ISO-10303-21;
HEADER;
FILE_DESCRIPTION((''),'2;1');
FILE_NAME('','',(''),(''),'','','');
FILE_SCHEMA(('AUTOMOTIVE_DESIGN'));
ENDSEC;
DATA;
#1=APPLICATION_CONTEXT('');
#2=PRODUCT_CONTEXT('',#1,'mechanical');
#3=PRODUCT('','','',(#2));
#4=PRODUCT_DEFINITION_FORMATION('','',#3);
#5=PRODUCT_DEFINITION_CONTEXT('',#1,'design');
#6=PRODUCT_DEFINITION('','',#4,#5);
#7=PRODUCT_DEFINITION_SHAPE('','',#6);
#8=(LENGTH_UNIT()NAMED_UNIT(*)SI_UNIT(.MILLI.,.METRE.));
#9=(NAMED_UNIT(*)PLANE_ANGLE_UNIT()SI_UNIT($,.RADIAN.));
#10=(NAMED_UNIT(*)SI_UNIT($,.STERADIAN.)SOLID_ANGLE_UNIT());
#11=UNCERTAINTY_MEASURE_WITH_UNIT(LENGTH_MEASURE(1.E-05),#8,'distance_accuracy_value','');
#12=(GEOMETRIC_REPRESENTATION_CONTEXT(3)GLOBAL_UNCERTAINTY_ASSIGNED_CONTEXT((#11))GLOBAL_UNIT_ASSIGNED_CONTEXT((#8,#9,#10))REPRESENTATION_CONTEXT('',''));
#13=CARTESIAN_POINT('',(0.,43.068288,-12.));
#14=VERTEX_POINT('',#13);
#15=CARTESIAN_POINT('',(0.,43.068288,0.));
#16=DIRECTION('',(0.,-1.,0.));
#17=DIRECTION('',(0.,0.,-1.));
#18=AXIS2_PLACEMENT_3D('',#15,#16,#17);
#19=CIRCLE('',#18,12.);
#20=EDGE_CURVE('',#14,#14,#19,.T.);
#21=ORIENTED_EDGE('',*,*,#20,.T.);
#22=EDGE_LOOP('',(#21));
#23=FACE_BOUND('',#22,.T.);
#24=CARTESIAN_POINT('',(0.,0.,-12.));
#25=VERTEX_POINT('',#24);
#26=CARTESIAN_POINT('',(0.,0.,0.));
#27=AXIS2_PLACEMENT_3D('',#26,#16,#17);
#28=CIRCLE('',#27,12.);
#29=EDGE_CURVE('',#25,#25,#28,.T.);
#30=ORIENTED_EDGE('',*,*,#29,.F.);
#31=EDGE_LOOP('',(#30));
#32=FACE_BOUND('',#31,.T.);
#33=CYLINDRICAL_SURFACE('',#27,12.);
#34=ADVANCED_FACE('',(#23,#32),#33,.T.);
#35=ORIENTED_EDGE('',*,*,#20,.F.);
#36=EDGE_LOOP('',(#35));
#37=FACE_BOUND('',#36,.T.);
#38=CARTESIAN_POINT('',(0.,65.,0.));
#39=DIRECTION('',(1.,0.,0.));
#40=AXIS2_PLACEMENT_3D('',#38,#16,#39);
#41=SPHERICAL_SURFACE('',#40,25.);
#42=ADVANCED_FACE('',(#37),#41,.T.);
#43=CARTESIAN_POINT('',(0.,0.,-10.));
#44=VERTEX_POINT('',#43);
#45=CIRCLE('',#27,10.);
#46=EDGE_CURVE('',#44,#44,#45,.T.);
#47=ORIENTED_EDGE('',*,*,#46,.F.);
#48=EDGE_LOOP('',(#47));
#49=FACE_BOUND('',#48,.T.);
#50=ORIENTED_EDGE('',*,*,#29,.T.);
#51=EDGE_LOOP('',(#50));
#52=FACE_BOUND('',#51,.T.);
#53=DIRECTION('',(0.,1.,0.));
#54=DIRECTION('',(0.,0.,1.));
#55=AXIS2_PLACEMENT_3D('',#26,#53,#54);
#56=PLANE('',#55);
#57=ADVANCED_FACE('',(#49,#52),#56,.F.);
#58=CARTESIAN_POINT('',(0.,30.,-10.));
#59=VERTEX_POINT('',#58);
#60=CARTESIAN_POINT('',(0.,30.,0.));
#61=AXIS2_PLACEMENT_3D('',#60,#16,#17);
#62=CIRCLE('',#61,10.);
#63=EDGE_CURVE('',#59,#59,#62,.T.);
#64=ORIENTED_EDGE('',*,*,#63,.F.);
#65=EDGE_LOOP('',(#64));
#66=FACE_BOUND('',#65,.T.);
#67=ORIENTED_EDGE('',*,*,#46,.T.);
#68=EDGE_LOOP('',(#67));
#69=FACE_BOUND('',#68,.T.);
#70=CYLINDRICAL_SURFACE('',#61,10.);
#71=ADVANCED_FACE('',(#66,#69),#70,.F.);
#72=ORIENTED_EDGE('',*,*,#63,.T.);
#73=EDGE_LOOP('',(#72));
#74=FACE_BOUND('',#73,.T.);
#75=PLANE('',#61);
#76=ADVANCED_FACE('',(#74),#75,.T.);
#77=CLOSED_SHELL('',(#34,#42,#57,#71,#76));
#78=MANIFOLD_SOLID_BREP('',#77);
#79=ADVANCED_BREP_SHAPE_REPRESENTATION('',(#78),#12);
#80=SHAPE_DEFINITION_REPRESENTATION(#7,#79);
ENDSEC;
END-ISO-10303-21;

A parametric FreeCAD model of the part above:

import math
import FreeCAD as App
import Part
import Sketcher

V = App.Vector
Q = App.Units.Quantity

doc = App.newDocument("Part")
body = doc.addObject("PartDesign::Body", "Body")

sketch1 = body.newObject("Sketcher::SketchObject", "Sketch")
sketch1.AttachmentSupport = (doc.getObject("XY_Plane"), [""])
sketch1.MapMode = "FlatFace"
sketch1.addGeometry(Part.LineSegment(V(-12, 0, 0), V(0, 0, 0)), False)
sketch1.addGeometry(Part.LineSegment(V(0, 0, 0), V(0, 90, 0)), False)
sketch1.addGeometry(Part.ArcOfCircle(Part.Circle(V(0, 65, 0), V(0, 0, 1), 25), math.radians(90), math.radians(241)), False)
sketch1.addGeometry(Part.LineSegment(V(-12, 43, 0), V(-12, 0, 0)), False)
sketch1.addConstraint(Sketcher.Constraint("Coincident", 0, 2, 1, 1))
sketch1.addConstraint(Sketcher.Constraint("Coincident", 1, 2, 2, 1))
sketch1.addConstraint(Sketcher.Constraint("Coincident", 2, 2, 3, 1))
sketch1.addConstraint(Sketcher.Constraint("Coincident", 3, 2, 0, 1))
sketch1.addConstraint(Sketcher.Constraint("Horizontal", 0))
sketch1.addConstraint(Sketcher.Constraint("Vertical", 1))
sketch1.addConstraint(Sketcher.Constraint("Vertical", 3))
sketch1.addConstraint(Sketcher.Constraint("Coincident", 0, 2, -1, 1))
sketch1.addConstraint(Sketcher.Constraint("PointOnObject", 2, 3, -2))
sketch1.addConstraint(Sketcher.Constraint("Radius", 2, Q("25 mm")))
sketch1.addConstraint(Sketcher.Constraint("DistanceX", 0, 1, 0, 2, Q("12 mm")))
sketch1.addConstraint(Sketcher.Constraint("DistanceY", 1, 1, 1, 2, Q("90 mm")))
revolution = body.newObject("PartDesign::Revolution", "Revolution")
revolution.Profile = sketch1
revolution.ReferenceAxis = (sketch1, ["V_Axis"])
revolution.Angle = 360

sketch2 = body.newObject("Sketcher::SketchObject", "Sketch001")
sketch2.AttachmentSupport = (doc.getObject("XZ_Plane"), [""])
sketch2.MapMode = "FlatFace"
sketch2.addGeometry(Part.Circle(V(0, 0, 0), V(0, 0, 1), 10), False)
sketch2.addGeometry(Part.Circle(V(0, 22, 0), V(0, 0, 1), 5), False)
sketch2.addGeometry(Part.Circle(V(0, -22, 0), V(0, 0, 1), 5), False)
sketch2.addConstraint(Sketcher.Constraint("Coincident", 0, 3, -1, 1))
sketch2.addConstraint(Sketcher.Constraint("Equal", 1, 2))
sketch2.addConstraint(Sketcher.Constraint("Symmetric", 1, 3, 2, 3, -1, 1))
sketch2.addConstraint(Sketcher.Constraint("PointOnObject", 1, 3, -2))
sketch2.addConstraint(Sketcher.Constraint("Diameter", 0, Q("20 mm")))
sketch2.addConstraint(Sketcher.Constraint("Diameter", 1, Q("10 mm")))
sketch2.addConstraint(Sketcher.Constraint("DistanceY", -1, 1, 1, 3, Q("22 mm")))
pocket1 = body.newObject("PartDesign::Pocket", "Pocket")
pocket1.Profile = sketch2
pocket1.Length = 30

doc.recompute()
